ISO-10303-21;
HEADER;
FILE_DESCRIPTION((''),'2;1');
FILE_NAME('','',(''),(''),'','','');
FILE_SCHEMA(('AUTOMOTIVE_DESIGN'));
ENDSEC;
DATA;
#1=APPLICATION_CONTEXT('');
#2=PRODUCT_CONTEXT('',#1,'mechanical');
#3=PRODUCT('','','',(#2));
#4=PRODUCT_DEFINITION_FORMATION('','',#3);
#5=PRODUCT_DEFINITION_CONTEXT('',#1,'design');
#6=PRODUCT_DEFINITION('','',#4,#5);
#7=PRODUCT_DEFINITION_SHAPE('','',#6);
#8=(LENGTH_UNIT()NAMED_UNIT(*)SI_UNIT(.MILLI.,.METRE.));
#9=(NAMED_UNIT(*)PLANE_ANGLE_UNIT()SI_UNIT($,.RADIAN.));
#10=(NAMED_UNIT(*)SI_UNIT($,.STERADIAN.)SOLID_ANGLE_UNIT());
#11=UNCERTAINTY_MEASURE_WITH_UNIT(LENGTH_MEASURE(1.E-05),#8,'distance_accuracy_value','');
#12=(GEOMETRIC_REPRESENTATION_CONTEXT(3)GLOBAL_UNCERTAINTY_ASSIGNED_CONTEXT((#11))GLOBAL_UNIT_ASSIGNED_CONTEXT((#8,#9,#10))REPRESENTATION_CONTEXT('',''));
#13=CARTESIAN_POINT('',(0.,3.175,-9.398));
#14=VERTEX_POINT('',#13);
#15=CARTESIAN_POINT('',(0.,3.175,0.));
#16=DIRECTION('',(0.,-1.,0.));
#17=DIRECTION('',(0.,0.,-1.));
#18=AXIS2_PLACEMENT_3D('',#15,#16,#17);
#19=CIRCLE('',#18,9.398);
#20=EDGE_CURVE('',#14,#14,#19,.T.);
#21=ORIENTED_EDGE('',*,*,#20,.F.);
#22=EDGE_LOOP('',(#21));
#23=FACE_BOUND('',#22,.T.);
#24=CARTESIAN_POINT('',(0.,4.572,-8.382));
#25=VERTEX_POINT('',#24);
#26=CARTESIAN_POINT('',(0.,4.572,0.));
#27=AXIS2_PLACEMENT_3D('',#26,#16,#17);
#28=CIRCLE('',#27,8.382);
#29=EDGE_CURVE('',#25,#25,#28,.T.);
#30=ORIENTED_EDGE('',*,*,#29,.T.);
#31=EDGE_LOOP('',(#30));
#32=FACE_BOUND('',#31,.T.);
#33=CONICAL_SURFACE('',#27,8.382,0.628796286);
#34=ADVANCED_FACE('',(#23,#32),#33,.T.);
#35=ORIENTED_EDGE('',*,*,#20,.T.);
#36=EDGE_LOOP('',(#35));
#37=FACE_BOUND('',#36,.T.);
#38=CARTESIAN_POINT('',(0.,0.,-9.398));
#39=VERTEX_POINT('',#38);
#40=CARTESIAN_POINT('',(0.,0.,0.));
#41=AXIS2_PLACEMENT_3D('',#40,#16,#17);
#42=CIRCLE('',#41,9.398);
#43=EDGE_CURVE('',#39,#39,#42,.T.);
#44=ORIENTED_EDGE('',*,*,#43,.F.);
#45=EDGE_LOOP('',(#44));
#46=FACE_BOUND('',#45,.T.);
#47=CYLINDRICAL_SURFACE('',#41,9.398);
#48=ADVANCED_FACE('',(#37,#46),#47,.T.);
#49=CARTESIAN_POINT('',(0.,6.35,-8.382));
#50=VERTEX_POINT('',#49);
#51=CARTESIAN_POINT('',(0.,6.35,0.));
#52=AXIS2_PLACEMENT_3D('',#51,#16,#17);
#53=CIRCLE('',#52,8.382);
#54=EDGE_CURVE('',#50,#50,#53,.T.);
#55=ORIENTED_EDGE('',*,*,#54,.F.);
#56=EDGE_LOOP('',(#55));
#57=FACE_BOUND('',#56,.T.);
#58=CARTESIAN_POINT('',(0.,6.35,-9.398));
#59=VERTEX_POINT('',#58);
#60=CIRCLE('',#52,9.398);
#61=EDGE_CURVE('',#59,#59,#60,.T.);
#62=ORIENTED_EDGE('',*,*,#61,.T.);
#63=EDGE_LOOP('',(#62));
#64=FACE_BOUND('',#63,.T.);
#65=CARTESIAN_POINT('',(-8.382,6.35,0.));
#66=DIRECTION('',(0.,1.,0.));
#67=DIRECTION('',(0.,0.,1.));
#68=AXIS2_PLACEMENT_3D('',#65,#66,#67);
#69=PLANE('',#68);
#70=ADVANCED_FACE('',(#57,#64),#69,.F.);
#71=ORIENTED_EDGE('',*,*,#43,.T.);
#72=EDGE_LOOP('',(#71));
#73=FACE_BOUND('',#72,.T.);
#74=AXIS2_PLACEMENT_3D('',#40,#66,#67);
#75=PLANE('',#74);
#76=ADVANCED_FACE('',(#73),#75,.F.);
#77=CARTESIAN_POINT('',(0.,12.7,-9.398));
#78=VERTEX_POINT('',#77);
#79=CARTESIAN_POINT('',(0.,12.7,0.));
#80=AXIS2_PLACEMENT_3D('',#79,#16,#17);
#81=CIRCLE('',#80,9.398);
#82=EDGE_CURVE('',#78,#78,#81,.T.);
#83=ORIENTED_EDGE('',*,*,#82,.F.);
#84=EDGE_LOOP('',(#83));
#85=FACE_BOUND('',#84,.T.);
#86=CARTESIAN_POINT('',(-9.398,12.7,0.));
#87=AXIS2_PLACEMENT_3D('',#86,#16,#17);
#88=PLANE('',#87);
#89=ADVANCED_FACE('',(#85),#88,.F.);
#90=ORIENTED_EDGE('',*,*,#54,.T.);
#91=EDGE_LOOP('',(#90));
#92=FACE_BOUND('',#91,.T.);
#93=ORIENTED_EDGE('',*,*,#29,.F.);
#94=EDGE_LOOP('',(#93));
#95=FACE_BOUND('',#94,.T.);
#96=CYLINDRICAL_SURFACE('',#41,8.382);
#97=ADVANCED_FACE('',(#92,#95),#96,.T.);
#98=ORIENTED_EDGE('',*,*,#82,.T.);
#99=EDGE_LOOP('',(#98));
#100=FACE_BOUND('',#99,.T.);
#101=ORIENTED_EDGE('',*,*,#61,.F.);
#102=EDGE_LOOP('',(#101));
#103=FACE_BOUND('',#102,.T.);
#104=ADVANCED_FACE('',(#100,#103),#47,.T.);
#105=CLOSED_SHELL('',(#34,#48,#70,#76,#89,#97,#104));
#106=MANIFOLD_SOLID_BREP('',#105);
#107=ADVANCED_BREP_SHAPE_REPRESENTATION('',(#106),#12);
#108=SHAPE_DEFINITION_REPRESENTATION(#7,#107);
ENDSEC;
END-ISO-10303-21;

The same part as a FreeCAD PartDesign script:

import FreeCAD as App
import Part
import Sketcher
Q = App.Units.Quantity


def add_polygon(sketch, points):
    """Adds a closed chain of lines whose ends are joined by coincident constraints."""
    first, n = sketch.GeometryCount, len(points)
    for a, b in zip(points, points[1:] + points[:1]):
        sketch.addGeometry(Part.LineSegment(App.Vector(*a, 0), App.Vector(*b, 0)), False)
    for i in range(n):
        sketch.addConstraint(Sketcher.Constraint("Coincident", first + i, 2, first + (i + 1) % n, 1))

doc = App.newDocument("Part")
body = doc.addObject("PartDesign::Body", "Body")

sketch1 = body.newObject("Sketcher::SketchObject", "Sketch")
sketch1.AttachmentSupport = (doc.getObject("XY_Plane"), [""])
sketch1.MapMode = "FlatFace"
add_polygon(sketch1, [(-9.4, 0), (0, 0), (0, 12.7), (-9.4, 12.7), (-9.4, 6.3), (-8.4, 6.3), (-8.4, 4.6), (-9.4, 3.2)])
sketch1.addConstraint(Sketcher.Constraint("Horizontal", 0))
sketch1.addConstraint(Sketcher.Constraint("Vertical", 1))
sketch1.addConstraint(Sketcher.Constraint("Horizontal", 2))
sketch1.addConstraint(Sketcher.Constraint("Vertical", 3))
sketch1.addConstraint(Sketcher.Constraint("Horizontal", 4))
sketch1.addConstraint(Sketcher.Constraint("Vertical", 5))
sketch1.addConstraint(Sketcher.Constraint("Vertical", 7))
sketch1.addConstraint(Sketcher.Constraint("Coincident", 0, 2, -1, 1))
sketch1.addConstraint(Sketcher.Constraint("Vertical", 3, 2, 6, 2))
sketch1.addConstraint(Sketcher.Constraint("DistanceY", 1, 1, 1, 2, Q("0.5 in")))
sketch1.addConstraint(Sketcher.Constraint("DistanceX", 0, 1, 0, 2, Q("0.37 in")))
sketch1.addConstraint(Sketcher.Constraint("DistanceX", 4, 1, 4, 2, Q("0.04 in")))
sketch1.addConstraint(Sketcher.Constraint("DistanceY", 3, 2, 3, 1, Q("0.25 in")))
sketch1.addConstraint(Sketcher.Constraint("DistanceY", 5, 2, 5, 1, Q("0.07 in")))
sketch1.addConstraint(Sketcher.Constraint("DistanceY", 7, 2, 7, 1, Q("0.125 in")))
revolution = body.newObject("PartDesign::Revolution", "Revolution")
revolution.Profile = sketch1
revolution.ReferenceAxis = (sketch1, ["V_Axis"])
revolution.Angle = 360

doc.recompute()
